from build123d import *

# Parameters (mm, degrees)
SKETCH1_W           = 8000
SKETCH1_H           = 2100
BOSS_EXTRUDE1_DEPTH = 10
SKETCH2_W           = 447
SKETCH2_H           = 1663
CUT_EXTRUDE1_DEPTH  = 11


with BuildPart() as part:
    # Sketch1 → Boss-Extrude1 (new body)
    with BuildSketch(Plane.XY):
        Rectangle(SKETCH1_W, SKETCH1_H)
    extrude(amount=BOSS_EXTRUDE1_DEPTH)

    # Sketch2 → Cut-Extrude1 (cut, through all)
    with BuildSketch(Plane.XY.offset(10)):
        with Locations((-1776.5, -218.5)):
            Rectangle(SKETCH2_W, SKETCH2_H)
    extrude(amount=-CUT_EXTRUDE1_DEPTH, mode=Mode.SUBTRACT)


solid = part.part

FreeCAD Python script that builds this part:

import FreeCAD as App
import Part
import Sketcher

V = App.Vector
Q = App.Units.Quantity


def add_polygon(sketch, points):
    """Adds a closed chain of lines whose ends are joined by coincident constraints."""
    first, n = sketch.GeometryCount, len(points)
    for a, b in zip(points, points[1:] + points[:1]):
        sketch.addGeometry(Part.LineSegment(App.Vector(*a, 0), App.Vector(*b, 0)), False)
    for i in range(n):
        sketch.addConstraint(Sketcher.Constraint("Coincident", first + i, 2, first + (i + 1) % n, 1))

doc = App.newDocument("Part")
body = doc.addObject("PartDesign::Body", "Body")

sketch1 = body.newObject("Sketcher::SketchObject", "Sketch")
sketch1.AttachmentSupport = (doc.getObject("XY_Plane"), [""])
sketch1.MapMode = "FlatFace"
add_polygon(sketch1, [(-4000, 1050), (-4000, -1050), (4000, -1050), (4000, 1050)])
sketch1.addConstraint(Sketcher.Constraint("Vertical", 0))
sketch1.addConstraint(Sketcher.Constraint("Horizontal", 1))
sketch1.addConstraint(Sketcher.Constraint("Vertical", 2))
sketch1.addConstraint(Sketcher.Constraint("Horizontal", 3))
sketch1.addConstraint(Sketcher.Constraint("Symmetric", 0, 2, 2, 2, -1, 1))
sketch1.addConstraint(Sketcher.Constraint("DistanceX", 1, 1, 1, 2, Q("8000 mm")))
sketch1.addConstraint(Sketcher.Constraint("DistanceY", 0, 2, 0, 1, Q("2100 mm")))
pad1 = body.newObject("PartDesign::Pad", "Pad")
pad1.Profile = sketch1
pad1.Length = 10

sketch2 = body.newObject("Sketcher::SketchObject", "Sketch001")
sketch2.AttachmentSupport = (doc.getObject("XY_Plane"), [""])
sketch2.MapMode = "FlatFace"
sketch2.AttachmentOffset = App.Placement(V(0, 0, 10), App.Rotation())
add_polygon(sketch2, [(-2000, 613), (-2000, -1050), (-1553, -1050), (-1553, 613)])
sketch2.addConstraint(Sketcher.Constraint("Vertical", 0))
sketch2.addConstraint(Sketcher.Constraint("Horizontal", 1))
sketch2.addConstraint(Sketcher.Constraint("Vertical", 2))
sketch2.addConstraint(Sketcher.Constraint("Horizontal", 3))
sketch2.addConstraint(Sketcher.Constraint("DistanceX", 1, 1, 1, 2, Q("447 mm")))
sketch2.addConstraint(Sketcher.Constraint("DistanceY", 0, 2, 0, 1, Q("1663 mm")))
sketch2.addConstraint(Sketcher.Constraint("DistanceX", 0, 2, -1, 1, Q("2000 mm")))
sketch2.addConstraint(Sketcher.Constraint("DistanceY", 0, 2, -1, 1, Q("1050 mm")))
pocket1 = body.newObject("PartDesign::Pocket", "Pocket")
pocket1.Profile = sketch2
pocket1.Type = "ThroughAll"

doc.recompute()
